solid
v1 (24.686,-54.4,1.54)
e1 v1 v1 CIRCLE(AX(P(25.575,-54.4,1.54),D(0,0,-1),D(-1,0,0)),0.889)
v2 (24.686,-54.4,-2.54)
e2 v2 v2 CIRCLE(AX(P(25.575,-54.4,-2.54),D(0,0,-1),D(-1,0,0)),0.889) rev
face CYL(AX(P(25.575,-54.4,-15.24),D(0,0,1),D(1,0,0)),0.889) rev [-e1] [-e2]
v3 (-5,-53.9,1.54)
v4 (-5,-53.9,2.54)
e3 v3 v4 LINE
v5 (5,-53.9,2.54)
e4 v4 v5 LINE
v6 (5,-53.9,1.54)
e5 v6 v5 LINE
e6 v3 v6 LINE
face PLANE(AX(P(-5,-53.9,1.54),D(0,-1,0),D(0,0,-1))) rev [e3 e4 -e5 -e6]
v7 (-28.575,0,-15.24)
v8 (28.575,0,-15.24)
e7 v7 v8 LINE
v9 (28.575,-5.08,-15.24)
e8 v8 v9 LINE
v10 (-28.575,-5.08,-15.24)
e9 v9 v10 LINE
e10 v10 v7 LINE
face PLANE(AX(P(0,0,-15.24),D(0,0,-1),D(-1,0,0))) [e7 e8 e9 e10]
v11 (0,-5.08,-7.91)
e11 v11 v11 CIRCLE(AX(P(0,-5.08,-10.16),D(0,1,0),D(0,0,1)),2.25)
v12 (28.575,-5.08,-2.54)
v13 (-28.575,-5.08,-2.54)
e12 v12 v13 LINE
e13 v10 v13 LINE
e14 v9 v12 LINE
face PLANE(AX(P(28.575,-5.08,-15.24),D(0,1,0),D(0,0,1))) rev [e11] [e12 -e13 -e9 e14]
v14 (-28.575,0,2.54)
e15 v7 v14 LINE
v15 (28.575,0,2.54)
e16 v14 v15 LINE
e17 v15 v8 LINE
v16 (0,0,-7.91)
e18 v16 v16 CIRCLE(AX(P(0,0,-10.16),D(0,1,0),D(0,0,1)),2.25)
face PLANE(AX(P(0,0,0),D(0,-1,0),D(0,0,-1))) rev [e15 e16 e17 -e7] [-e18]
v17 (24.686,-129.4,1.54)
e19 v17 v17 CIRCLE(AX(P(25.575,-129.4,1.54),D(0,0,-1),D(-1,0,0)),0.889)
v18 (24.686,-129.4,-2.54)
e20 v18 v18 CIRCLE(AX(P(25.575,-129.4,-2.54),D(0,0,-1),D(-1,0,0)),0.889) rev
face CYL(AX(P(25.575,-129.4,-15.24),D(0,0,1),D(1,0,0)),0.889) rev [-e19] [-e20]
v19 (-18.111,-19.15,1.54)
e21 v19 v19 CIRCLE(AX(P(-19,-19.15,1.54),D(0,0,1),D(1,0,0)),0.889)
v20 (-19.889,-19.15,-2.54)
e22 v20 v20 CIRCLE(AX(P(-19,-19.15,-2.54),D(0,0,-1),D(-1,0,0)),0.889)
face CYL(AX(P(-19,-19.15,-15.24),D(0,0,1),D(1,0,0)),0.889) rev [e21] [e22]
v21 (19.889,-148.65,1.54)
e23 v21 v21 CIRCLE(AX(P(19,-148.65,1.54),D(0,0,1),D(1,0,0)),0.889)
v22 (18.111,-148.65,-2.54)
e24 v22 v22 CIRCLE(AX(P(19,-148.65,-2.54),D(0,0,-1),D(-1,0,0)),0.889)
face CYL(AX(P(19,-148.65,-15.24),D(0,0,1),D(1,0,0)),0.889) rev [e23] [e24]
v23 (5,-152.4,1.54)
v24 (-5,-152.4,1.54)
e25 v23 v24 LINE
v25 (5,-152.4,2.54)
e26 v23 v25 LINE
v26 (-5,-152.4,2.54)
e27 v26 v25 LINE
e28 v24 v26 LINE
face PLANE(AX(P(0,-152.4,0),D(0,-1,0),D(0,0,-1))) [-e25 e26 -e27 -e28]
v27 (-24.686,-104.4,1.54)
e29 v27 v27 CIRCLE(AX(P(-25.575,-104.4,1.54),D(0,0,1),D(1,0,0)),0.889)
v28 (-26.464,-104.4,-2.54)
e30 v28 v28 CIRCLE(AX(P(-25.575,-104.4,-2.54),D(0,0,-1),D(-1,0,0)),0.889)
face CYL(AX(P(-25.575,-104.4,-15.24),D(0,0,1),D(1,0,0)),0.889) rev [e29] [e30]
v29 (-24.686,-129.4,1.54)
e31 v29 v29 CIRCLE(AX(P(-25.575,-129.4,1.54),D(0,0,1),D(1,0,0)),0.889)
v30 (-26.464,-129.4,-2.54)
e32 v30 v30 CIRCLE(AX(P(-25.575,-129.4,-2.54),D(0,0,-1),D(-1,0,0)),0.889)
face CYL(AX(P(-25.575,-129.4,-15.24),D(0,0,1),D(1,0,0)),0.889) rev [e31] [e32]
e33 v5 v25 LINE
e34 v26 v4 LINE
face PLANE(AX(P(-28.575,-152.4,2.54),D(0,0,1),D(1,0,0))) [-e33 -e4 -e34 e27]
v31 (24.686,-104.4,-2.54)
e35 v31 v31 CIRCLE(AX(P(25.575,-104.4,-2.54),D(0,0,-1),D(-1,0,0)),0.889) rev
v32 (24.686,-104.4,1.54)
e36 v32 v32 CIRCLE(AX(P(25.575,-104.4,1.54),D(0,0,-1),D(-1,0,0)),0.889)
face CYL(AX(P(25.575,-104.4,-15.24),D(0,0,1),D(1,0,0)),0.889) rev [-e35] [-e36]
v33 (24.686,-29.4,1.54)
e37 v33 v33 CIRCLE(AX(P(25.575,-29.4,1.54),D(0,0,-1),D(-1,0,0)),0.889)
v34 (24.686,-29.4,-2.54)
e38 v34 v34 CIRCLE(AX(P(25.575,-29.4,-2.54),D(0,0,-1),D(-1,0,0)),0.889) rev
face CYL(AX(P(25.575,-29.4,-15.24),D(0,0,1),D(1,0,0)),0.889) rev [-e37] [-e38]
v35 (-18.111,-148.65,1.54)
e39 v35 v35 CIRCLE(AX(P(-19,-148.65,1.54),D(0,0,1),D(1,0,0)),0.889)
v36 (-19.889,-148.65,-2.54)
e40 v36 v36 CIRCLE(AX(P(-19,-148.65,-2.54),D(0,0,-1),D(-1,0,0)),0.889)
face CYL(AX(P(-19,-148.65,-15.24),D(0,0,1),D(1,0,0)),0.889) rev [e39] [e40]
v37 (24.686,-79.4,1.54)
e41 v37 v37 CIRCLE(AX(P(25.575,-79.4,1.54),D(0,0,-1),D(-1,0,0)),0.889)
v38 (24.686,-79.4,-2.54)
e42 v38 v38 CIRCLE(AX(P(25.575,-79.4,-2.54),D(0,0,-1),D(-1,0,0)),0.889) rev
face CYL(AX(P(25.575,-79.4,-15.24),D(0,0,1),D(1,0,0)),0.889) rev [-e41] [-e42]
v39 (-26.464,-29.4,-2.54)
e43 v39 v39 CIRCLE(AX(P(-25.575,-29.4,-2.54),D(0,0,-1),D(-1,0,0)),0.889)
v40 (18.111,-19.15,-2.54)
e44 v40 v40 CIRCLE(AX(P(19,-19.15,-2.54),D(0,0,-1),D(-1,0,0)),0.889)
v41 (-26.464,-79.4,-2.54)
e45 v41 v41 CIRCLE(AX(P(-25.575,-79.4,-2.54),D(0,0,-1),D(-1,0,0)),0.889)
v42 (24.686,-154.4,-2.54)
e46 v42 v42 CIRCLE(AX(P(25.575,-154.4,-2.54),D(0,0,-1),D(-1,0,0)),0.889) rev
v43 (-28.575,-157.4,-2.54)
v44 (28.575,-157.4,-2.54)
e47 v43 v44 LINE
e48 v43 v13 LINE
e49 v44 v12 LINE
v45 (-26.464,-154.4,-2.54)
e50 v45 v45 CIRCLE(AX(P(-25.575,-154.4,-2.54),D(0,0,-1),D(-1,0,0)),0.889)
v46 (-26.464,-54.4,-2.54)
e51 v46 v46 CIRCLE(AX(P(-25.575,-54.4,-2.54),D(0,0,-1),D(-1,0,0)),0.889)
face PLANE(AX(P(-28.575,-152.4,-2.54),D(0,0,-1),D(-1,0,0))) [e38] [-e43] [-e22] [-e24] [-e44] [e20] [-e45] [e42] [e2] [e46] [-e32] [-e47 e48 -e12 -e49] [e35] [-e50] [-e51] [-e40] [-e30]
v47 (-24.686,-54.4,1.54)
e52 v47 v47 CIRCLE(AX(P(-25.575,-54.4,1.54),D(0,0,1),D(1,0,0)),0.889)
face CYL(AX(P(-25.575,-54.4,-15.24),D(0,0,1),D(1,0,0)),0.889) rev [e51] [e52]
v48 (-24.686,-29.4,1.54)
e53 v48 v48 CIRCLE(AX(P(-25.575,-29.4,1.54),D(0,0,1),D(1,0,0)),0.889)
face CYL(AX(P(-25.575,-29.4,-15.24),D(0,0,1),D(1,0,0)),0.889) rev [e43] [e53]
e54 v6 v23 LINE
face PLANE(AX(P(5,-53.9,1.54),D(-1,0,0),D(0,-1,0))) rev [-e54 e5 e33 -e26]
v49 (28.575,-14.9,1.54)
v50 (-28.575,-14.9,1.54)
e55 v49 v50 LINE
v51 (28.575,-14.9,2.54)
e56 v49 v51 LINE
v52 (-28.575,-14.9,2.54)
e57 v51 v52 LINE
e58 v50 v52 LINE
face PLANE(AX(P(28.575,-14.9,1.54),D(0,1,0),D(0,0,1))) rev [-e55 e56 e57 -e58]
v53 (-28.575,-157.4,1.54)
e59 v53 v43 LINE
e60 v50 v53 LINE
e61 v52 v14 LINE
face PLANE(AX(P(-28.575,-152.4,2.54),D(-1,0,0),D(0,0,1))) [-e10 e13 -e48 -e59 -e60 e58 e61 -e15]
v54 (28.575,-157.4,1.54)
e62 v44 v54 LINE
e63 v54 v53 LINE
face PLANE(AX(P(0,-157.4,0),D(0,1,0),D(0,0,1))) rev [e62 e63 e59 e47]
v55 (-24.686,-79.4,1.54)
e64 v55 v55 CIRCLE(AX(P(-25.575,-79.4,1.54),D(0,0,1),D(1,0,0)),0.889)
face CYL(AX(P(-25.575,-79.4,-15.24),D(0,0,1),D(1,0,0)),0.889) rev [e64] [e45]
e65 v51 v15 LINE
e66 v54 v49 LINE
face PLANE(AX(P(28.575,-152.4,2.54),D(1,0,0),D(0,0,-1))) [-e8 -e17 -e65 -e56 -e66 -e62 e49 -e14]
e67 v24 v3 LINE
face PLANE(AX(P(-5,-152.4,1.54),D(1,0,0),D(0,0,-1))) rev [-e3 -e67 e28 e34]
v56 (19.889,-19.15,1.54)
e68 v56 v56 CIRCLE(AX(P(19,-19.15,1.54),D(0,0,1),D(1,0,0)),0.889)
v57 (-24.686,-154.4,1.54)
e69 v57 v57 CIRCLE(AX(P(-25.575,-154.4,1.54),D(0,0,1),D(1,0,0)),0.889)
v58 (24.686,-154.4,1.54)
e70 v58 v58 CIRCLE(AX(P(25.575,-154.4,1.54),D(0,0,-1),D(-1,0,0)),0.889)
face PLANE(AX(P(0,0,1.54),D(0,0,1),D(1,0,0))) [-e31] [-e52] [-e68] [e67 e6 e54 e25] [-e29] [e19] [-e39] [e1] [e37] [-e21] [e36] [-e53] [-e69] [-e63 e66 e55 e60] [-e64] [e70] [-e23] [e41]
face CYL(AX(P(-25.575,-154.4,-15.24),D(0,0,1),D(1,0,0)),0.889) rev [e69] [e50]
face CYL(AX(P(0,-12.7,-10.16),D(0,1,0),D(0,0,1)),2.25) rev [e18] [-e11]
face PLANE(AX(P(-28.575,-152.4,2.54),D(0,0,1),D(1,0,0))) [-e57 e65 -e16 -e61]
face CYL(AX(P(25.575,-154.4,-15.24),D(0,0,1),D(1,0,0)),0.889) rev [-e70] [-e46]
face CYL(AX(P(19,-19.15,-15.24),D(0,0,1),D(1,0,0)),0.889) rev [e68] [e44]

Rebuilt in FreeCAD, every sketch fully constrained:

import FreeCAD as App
import Part
import Sketcher


def add_polygon(sketch, points):
    """Adds a closed chain of lines whose ends are joined by coincident constraints."""
    first, n = sketch.GeometryCount, len(points)
    for a, b in zip(points, points[1:] + points[:1]):
        sketch.addGeometry(Part.LineSegment(App.Vector(*a, 0), App.Vector(*b, 0)), False)
    for i in range(n):
        sketch.addConstraint(Sketcher.Constraint("Coincident", first + i, 2, first + (i + 1) % n, 1))

doc = App.newDocument("Part")
body = doc.addObject("PartDesign::Body", "Body")

sketch1 = doc.addObject("Sketcher::SketchObject", "Sketch")
body.addObject(sketch1)
sketch1.AttachmentSupport = (doc.XZ_Plane, [""])
sketch1.MapMode = "FlatFace"
add_polygon(sketch1, [(-28.575, -2.54), (-28.575, 2.54), (28.575, 2.54), (28.575, -2.54)])
sketch1.addConstraint(Sketcher.Constraint("Vertical", 0))
sketch1.addConstraint(Sketcher.Constraint("Horizontal", 1))
sketch1.addConstraint(Sketcher.Constraint("Vertical", 2))
sketch1.addConstraint(Sketcher.Constraint("Horizontal", 3))
sketch1.addConstraint(Sketcher.Constraint("Symmetric", 0, 2, 2, 2, -1, 1))
sketch1.addConstraint(Sketcher.Constraint("DistanceX", 1, 1, 1, 2, 57.15))
sketch1.addConstraint(Sketcher.Constraint("DistanceY", 0, 1, 0, 2, 5.08))
pad1 = doc.addObject("PartDesign::Pad", "Pad")
body.addObject(pad1)
pad1.Profile = sketch1
pad1.Length = 152.4

sketch2 = doc.addObject("Sketcher::SketchObject", "Sketch001")
body.addObject(sketch2)
sketch2.AttachmentSupport = (doc.XY_Plane, [""])
sketch2.MapMode = "FlatFace"
sketch2.AttachmentOffset = App.Placement(App.Vector(0, 0, 2.54), App.Rotation())
add_polygon(sketch2, [(-5, -152.4), (-5, -53.9), (5, -53.9), (5, -152.4), (28.575, -152.4), (28.575, -14.9), (-28.575, -14.9), (-28.575, -152.4)])
sketch2.addConstraint(Sketcher.Constraint("Vertical", 0))
sketch2.addConstraint(Sketcher.Constraint("Horizontal", 1))
sketch2.addConstraint(Sketcher.Constraint("Vertical", 2))
sketch2.addConstraint(Sketcher.Constraint("Horizontal", 3))
sketch2.addConstraint(Sketcher.Constraint("Vertical", 4))
sketch2.addConstraint(Sketcher.Constraint("Horizontal", 5))
sketch2.addConstraint(Sketcher.Constraint("Vertical", 6))
sketch2.addConstraint(Sketcher.Constraint("Horizontal", 7))
sketch2.addConstraint(Sketcher.Constraint("Symmetric", 3, 2, 6, 2, -2))
sketch2.addConstraint(Sketcher.Constraint("Equal", 3, 7))
sketch2.addConstraint(Sketcher.Constraint("DistanceX", 1, 1, 1, 2, 10.0))
sketch2.addConstraint(Sketcher.Constraint("DistanceY", 0, 1, 0, 2, 98.5))
sketch2.addConstraint(Sketcher.Constraint("DistanceY", 4, 1, 4, 2, 137.5))
sketch2.addConstraint(Sketcher.Constraint("DistanceX", 5, 2, 5, 1, 57.15))
sketch2.addConstraint(Sketcher.Constraint("DistanceY", 0, 2, -1, 1, 53.9))
pocket1 = doc.addObject("PartDesign::Pocket", "Pocket")
body.addObject(pocket1)
pocket1.Profile = sketch2
pocket1.Length = 1

sketch3 = doc.addObject("Sketcher::SketchObject", "Sketch002")
body.addObject(sketch3)
sketch3.AttachmentSupport = (doc.XY_Plane, [""])
sketch3.MapMode = "FlatFace"
sketch3.AttachmentOffset = App.Placement(App.Vector(0, 0, -2.54), App.Rotation())
add_polygon(sketch3, [(28.575, 0), (28.575, -5.08), (-28.575, -5.08), (-28.575, 0)])
sketch3.addConstraint(Sketcher.Constraint("Vertical", 0))
sketch3.addConstraint(Sketcher.Constraint("Horizontal", 1))
sketch3.addConstraint(Sketcher.Constraint("Vertical", 2))
sketch3.addConstraint(Sketcher.Constraint("Horizontal", 3))
sketch3.addConstraint(Sketcher.Constraint("Symmetric", 2, 2, 3, 2, -1, 1))
sketch3.addConstraint(Sketcher.Constraint("DistanceX", 1, 2, 1, 1, 57.15))
sketch3.addConstraint(Sketcher.Constraint("DistanceY", 0, 2, 0, 1, 5.08))
pad2 = doc.addObject("PartDesign::Pad", "Pad001")
body.addObject(pad2)
pad2.Profile = sketch3
pad2.Length = 12.7
pad2.Reversed = True

sketch4 = doc.addObject("Sketcher::SketchObject", "Sketch003")
body.addObject(sketch4)
sketch4.AttachmentSupport = (doc.XZ_Plane, [""])
sketch4.MapMode = "FlatFace"
sketch4.addGeometry(Part.Circle(App.Vector(0, -10.16, 0), App.Vector(0, 0, 1), 2.25), False)
sketch4.addConstraint(Sketcher.Constraint("PointOnObject", 0, 3, -2))
sketch4.addConstraint(Sketcher.Constraint("Diameter", 0, 4.5))
sketch4.addConstraint(Sketcher.Constraint("DistanceY", 0, 3, -1, 1, 10.16))
pocket2 = doc.addObject("PartDesign::Pocket", "Pocket001")
body.addObject(pocket2)
pocket2.Profile = sketch4
pocket2.Length = 12.7
pocket2.Reversed = True

sketch5 = doc.addObject("Sketcher::SketchObject", "Sketch004")
body.addObject(sketch5)
sketch5.AttachmentSupport = (doc.XY_Plane, [""])
sketch5.MapMode = "FlatFace"
sketch5.AttachmentOffset = App.Placement(App.Vector(0, 0, 1.54), App.Rotation())
sketch5.addGeometry(Part.Circle(App.Vector(-19, -19.15, 0), App.Vector(0, 0, 1), 0.889), False)
sketch5.addGeometry(Part.Circle(App.Vector(19, -19.15, 0), App.Vector(0, 0, 1), 0.889), False)
sketch5.addGeometry(Part.Circle(App.Vector(-19, -148.65, 0), App.Vector(0, 0, 1), 0.889), False)
sketch5.addGeometry(Part.Circle(App.Vector(19, -148.65, 0), App.Vector(0, 0, 1), 0.889), False)
sketch5.addConstraint(Sketcher.Constraint("Equal", 0, 1))
sketch5.addConstraint(Sketcher.Constraint("Equal", 1, 2))
sketch5.addConstraint(Sketcher.Constraint("Equal", 2, 3))
sketch5.addConstraint(Sketcher.Constraint("Symmetric", 0, 3, 1, 3, -2))
sketch5.addConstraint(Sketcher.Constraint("Symmetric", 2, 3, 3, 3, -2))
sketch5.addConstraint(Sketcher.Constraint("Vertical", 0, 3, 2, 3))
sketch5.addConstraint(Sketcher.Constraint("Diameter", 0, 1.778))
sketch5.addConstraint(Sketcher.Constraint("DistanceX", 0, 3, -1, 1, 19.0))
sketch5.addConstraint(Sketcher.Constraint("DistanceY", 2, 3, 0, 3, 129.5))
sketch5.addConstraint(Sketcher.Constraint("DistanceY", 0, 3, -1, 1, 19.15))
pocket3 = doc.addObject("PartDesign::Pocket", "Pocket002")
body.addObject(pocket3)
pocket3.Profile = sketch5
pocket3.Type = "ThroughAll"

sketch6 = doc.addObject("Sketcher::SketchObject", "Sketch005")
body.addObject(sketch6)
sketch6.AttachmentSupport = (doc.XZ_Plane, [""])
sketch6.MapMode = "FlatFace"
sketch6.AttachmentOffset = App.Placement(App.Vector(0, 0, 152.4), App.Rotation())
add_polygon(sketch6, [(-28.575, 1.54), (-28.575, -2.54), (28.575, -2.54), (28.575, 1.54)])
sketch6.addConstraint(Sketcher.Constraint("Vertical", 0))
sketch6.addConstraint(Sketcher.Constraint("Horizontal", 1))
sketch6.addConstraint(Sketcher.Constraint("Vertical", 2))
sketch6.addConstraint(Sketcher.Constraint("Horizontal", 3))
sketch6.addConstraint(Sketcher.Constraint("DistanceX", 1, 1, 1, 2, 57.15))
sketch6.addConstraint(Sketcher.Constraint("DistanceY", 0, 2, 0, 1, 4.08))
sketch6.addConstraint(Sketcher.Constraint("DistanceY", 0, 2, -1, 1, 2.54))
sketch6.addConstraint(Sketcher.Constraint("DistanceX", 0, 2, -1, 1, 28.575))
pad3 = doc.addObject("PartDesign::Pad", "Pad002")
body.addObject(pad3)
pad3.Profile = sketch6
pad3.Length = 5

sketch7 = doc.addObject("Sketcher::SketchObject", "Sketch006")
body.addObject(sketch7)
sketch7.AttachmentSupport = (doc.XY_Plane, [""])
sketch7.MapMode = "FlatFace"
sketch7.AttachmentOffset = App.Placement(App.Vector(0, 0, 1.54), App.Rotation())
sketch7.addGeometry(Part.Circle(App.Vector(-25.575, -154.4, 0), App.Vector(0, 0, 1), 0.889), False)
sketch7.addConstraint(Sketcher.Constraint("Diameter", 0, 1.778))
sketch7.addConstraint(Sketcher.Constraint("DistanceY", 0, 3, -1, 1, 154.4))
sketch7.addConstraint(Sketcher.Constraint("DistanceX", 0, 3, -1, 1, 25.575))
pocket4 = doc.addObject("PartDesign::Pocket", "Pocket003")
body.addObject(pocket4)
pocket4.Profile = sketch7
pocket4.Type = "ThroughAll"
doc.recompute()

mirrored = doc.addObject("PartDesign::Mirrored", "Mirrored")
body.addObject(mirrored)
mirrored.Originals = [pocket4]
mirrored.MirrorPlane = (doc.YZ_Plane, [""])
body.Tip = mirrored
doc.recompute()

linearpattern = doc.addObject("PartDesign::LinearPattern", "LinearPattern")
body.addObject(linearpattern)
linearpattern.Originals = [pocket4]
linearpattern.Direction = (doc.Y_Axis, [""])
linearpattern.Mode = "offset"
linearpattern.Offset = 25
linearpattern.Occurrences = 6
body.Tip = linearpattern

sketch8 = doc.addObject("Sketcher::SketchObject", "Sketch007")
body.addObject(sketch8)
sketch8.AttachmentSupport = (doc.XY_Plane, [""])
sketch8.MapMode = "FlatFace"
sketch8.AttachmentOffset = App.Placement(App.Vector(0, 0, 1.54), App.Rotation())
sketch8.addGeometry(Part.Circle(App.Vector(25.575, -129.4, 0), App.Vector(0, 0, 1), 0.889), False)
sketch8.addConstraint(Sketcher.Constraint("Diameter", 0, 1.778))
sketch8.addConstraint(Sketcher.Constraint("DistanceY", 0, 3, -1, 1, 129.4))
sketch8.addConstraint(Sketcher.Constraint("DistanceX", -1, 1, 0, 3, 25.575))
pocket5 = doc.addObject("PartDesign::Pocket", "Pocket004")
body.addObject(pocket5)
pocket5.Profile = sketch8
pocket5.Type = "ThroughAll"

sketch9 = doc.addObject("Sketcher::SketchObject", "Sketch008")
body.addObject(sketch9)
sketch9.AttachmentSupport = (doc.XY_Plane, [""])
sketch9.MapMode = "FlatFace"
sketch9.AttachmentOffset = App.Placement(App.Vector(0, 0, 1.54), App.Rotation())
sketch9.addGeometry(Part.Circle(App.Vector(25.575, -104.4, 0), App.Vector(0, 0, 1), 0.889), False)
sketch9.addConstraint(Sketcher.Constraint("Diameter", 0, 1.778))
sketch9.addConstraint(Sketcher.Constraint("DistanceY", 0, 3, -1, 1, 104.4))
sketch9.addConstraint(Sketcher.Constraint("DistanceX", -1, 1, 0, 3, 25.575))
pocket6 = doc.addObject("PartDesign::Pocket", "Pocket005")
body.addObject(pocket6)
pocket6.Profile = sketch9
pocket6.Type = "ThroughAll"

sketch10 = doc.addObject("Sketcher::SketchObject", "Sketch009")
body.addObject(sketch10)
sketch10.AttachmentSupport = (doc.XY_Plane, [""])
sketch10.MapMode = "FlatFace"
sketch10.AttachmentOffset = App.Placement(App.Vector(0, 0, 1.54), App.Rotation())
sketch10.addGeometry(Part.Circle(App.Vector(25.575, -79.4, 0), App.Vector(0, 0, 1), 0.889), False)
sketch10.addConstraint(Sketcher.Constraint("Diameter", 0, 1.778))
sketch10.addConstraint(Sketcher.Constraint("DistanceY", 0, 3, -1, 1, 79.4))
sketch10.addConstraint(Sketcher.Constraint("DistanceX", -1, 1, 0, 3, 25.575))
pocket7 = doc.addObject("PartDesign::Pocket", "Pocket006")
body.addObject(pocket7)
pocket7.Profile = sketch10
pocket7.Type = "ThroughAll"

sketch11 = doc.addObject("Sketcher::SketchObject", "Sketch010")
body.addObject(sketch11)
sketch11.AttachmentSupport = (doc.XY_Plane, [""])
sketch11.MapMode = "FlatFace"
sketch11.AttachmentOffset = App.Placement(App.Vector(0, 0, 1.54), App.Rotation())
sketch11.addGeometry(Part.Circle(App.Vector(25.575, -54.4, 0), App.Vector(0, 0, 1), 0.889), False)
sketch11.addConstraint(Sketcher.Constraint("Diameter", 0, 1.778))
sketch11.addConstraint(Sketcher.Constraint("DistanceY", 0, 3, -1, 1, 54.4))
sketch11.addConstraint(Sketcher.Constraint("DistanceX", -1, 1, 0, 3, 25.575))
pocket8 = doc.addObject("PartDesign::Pocket", "Pocket007")
body.addObject(pocket8)
pocket8.Profile = sketch11
pocket8.Type = "ThroughAll"

sketch12 = doc.addObject("Sketcher::SketchObject", "Sketch011")
body.addObject(sketch12)
sketch12.AttachmentSupport = (doc.XY_Plane, [""])
sketch12.MapMode = "FlatFace"
sketch12.AttachmentOffset = App.Placement(App.Vector(0, 0, 1.54), App.Rotation())
sketch12.addGeometry(Part.Circle(App.Vector(25.575, -29.4, 0), App.Vector(0, 0, 1), 0.889), False)
sketch12.addConstraint(Sketcher.Constraint("Diameter", 0, 1.778))
sketch12.addConstraint(Sketcher.Constraint("DistanceY", 0, 3, -1, 1, 29.4))
sketch12.addConstraint(Sketcher.Constraint("DistanceX", -1, 1, 0, 3, 25.575))
pocket9 = doc.addObject("PartDesign::Pocket", "Pocket008")
body.addObject(pocket9)
pocket9.Profile = sketch12
pocket9.Type = "ThroughAll"

doc.recompute()
